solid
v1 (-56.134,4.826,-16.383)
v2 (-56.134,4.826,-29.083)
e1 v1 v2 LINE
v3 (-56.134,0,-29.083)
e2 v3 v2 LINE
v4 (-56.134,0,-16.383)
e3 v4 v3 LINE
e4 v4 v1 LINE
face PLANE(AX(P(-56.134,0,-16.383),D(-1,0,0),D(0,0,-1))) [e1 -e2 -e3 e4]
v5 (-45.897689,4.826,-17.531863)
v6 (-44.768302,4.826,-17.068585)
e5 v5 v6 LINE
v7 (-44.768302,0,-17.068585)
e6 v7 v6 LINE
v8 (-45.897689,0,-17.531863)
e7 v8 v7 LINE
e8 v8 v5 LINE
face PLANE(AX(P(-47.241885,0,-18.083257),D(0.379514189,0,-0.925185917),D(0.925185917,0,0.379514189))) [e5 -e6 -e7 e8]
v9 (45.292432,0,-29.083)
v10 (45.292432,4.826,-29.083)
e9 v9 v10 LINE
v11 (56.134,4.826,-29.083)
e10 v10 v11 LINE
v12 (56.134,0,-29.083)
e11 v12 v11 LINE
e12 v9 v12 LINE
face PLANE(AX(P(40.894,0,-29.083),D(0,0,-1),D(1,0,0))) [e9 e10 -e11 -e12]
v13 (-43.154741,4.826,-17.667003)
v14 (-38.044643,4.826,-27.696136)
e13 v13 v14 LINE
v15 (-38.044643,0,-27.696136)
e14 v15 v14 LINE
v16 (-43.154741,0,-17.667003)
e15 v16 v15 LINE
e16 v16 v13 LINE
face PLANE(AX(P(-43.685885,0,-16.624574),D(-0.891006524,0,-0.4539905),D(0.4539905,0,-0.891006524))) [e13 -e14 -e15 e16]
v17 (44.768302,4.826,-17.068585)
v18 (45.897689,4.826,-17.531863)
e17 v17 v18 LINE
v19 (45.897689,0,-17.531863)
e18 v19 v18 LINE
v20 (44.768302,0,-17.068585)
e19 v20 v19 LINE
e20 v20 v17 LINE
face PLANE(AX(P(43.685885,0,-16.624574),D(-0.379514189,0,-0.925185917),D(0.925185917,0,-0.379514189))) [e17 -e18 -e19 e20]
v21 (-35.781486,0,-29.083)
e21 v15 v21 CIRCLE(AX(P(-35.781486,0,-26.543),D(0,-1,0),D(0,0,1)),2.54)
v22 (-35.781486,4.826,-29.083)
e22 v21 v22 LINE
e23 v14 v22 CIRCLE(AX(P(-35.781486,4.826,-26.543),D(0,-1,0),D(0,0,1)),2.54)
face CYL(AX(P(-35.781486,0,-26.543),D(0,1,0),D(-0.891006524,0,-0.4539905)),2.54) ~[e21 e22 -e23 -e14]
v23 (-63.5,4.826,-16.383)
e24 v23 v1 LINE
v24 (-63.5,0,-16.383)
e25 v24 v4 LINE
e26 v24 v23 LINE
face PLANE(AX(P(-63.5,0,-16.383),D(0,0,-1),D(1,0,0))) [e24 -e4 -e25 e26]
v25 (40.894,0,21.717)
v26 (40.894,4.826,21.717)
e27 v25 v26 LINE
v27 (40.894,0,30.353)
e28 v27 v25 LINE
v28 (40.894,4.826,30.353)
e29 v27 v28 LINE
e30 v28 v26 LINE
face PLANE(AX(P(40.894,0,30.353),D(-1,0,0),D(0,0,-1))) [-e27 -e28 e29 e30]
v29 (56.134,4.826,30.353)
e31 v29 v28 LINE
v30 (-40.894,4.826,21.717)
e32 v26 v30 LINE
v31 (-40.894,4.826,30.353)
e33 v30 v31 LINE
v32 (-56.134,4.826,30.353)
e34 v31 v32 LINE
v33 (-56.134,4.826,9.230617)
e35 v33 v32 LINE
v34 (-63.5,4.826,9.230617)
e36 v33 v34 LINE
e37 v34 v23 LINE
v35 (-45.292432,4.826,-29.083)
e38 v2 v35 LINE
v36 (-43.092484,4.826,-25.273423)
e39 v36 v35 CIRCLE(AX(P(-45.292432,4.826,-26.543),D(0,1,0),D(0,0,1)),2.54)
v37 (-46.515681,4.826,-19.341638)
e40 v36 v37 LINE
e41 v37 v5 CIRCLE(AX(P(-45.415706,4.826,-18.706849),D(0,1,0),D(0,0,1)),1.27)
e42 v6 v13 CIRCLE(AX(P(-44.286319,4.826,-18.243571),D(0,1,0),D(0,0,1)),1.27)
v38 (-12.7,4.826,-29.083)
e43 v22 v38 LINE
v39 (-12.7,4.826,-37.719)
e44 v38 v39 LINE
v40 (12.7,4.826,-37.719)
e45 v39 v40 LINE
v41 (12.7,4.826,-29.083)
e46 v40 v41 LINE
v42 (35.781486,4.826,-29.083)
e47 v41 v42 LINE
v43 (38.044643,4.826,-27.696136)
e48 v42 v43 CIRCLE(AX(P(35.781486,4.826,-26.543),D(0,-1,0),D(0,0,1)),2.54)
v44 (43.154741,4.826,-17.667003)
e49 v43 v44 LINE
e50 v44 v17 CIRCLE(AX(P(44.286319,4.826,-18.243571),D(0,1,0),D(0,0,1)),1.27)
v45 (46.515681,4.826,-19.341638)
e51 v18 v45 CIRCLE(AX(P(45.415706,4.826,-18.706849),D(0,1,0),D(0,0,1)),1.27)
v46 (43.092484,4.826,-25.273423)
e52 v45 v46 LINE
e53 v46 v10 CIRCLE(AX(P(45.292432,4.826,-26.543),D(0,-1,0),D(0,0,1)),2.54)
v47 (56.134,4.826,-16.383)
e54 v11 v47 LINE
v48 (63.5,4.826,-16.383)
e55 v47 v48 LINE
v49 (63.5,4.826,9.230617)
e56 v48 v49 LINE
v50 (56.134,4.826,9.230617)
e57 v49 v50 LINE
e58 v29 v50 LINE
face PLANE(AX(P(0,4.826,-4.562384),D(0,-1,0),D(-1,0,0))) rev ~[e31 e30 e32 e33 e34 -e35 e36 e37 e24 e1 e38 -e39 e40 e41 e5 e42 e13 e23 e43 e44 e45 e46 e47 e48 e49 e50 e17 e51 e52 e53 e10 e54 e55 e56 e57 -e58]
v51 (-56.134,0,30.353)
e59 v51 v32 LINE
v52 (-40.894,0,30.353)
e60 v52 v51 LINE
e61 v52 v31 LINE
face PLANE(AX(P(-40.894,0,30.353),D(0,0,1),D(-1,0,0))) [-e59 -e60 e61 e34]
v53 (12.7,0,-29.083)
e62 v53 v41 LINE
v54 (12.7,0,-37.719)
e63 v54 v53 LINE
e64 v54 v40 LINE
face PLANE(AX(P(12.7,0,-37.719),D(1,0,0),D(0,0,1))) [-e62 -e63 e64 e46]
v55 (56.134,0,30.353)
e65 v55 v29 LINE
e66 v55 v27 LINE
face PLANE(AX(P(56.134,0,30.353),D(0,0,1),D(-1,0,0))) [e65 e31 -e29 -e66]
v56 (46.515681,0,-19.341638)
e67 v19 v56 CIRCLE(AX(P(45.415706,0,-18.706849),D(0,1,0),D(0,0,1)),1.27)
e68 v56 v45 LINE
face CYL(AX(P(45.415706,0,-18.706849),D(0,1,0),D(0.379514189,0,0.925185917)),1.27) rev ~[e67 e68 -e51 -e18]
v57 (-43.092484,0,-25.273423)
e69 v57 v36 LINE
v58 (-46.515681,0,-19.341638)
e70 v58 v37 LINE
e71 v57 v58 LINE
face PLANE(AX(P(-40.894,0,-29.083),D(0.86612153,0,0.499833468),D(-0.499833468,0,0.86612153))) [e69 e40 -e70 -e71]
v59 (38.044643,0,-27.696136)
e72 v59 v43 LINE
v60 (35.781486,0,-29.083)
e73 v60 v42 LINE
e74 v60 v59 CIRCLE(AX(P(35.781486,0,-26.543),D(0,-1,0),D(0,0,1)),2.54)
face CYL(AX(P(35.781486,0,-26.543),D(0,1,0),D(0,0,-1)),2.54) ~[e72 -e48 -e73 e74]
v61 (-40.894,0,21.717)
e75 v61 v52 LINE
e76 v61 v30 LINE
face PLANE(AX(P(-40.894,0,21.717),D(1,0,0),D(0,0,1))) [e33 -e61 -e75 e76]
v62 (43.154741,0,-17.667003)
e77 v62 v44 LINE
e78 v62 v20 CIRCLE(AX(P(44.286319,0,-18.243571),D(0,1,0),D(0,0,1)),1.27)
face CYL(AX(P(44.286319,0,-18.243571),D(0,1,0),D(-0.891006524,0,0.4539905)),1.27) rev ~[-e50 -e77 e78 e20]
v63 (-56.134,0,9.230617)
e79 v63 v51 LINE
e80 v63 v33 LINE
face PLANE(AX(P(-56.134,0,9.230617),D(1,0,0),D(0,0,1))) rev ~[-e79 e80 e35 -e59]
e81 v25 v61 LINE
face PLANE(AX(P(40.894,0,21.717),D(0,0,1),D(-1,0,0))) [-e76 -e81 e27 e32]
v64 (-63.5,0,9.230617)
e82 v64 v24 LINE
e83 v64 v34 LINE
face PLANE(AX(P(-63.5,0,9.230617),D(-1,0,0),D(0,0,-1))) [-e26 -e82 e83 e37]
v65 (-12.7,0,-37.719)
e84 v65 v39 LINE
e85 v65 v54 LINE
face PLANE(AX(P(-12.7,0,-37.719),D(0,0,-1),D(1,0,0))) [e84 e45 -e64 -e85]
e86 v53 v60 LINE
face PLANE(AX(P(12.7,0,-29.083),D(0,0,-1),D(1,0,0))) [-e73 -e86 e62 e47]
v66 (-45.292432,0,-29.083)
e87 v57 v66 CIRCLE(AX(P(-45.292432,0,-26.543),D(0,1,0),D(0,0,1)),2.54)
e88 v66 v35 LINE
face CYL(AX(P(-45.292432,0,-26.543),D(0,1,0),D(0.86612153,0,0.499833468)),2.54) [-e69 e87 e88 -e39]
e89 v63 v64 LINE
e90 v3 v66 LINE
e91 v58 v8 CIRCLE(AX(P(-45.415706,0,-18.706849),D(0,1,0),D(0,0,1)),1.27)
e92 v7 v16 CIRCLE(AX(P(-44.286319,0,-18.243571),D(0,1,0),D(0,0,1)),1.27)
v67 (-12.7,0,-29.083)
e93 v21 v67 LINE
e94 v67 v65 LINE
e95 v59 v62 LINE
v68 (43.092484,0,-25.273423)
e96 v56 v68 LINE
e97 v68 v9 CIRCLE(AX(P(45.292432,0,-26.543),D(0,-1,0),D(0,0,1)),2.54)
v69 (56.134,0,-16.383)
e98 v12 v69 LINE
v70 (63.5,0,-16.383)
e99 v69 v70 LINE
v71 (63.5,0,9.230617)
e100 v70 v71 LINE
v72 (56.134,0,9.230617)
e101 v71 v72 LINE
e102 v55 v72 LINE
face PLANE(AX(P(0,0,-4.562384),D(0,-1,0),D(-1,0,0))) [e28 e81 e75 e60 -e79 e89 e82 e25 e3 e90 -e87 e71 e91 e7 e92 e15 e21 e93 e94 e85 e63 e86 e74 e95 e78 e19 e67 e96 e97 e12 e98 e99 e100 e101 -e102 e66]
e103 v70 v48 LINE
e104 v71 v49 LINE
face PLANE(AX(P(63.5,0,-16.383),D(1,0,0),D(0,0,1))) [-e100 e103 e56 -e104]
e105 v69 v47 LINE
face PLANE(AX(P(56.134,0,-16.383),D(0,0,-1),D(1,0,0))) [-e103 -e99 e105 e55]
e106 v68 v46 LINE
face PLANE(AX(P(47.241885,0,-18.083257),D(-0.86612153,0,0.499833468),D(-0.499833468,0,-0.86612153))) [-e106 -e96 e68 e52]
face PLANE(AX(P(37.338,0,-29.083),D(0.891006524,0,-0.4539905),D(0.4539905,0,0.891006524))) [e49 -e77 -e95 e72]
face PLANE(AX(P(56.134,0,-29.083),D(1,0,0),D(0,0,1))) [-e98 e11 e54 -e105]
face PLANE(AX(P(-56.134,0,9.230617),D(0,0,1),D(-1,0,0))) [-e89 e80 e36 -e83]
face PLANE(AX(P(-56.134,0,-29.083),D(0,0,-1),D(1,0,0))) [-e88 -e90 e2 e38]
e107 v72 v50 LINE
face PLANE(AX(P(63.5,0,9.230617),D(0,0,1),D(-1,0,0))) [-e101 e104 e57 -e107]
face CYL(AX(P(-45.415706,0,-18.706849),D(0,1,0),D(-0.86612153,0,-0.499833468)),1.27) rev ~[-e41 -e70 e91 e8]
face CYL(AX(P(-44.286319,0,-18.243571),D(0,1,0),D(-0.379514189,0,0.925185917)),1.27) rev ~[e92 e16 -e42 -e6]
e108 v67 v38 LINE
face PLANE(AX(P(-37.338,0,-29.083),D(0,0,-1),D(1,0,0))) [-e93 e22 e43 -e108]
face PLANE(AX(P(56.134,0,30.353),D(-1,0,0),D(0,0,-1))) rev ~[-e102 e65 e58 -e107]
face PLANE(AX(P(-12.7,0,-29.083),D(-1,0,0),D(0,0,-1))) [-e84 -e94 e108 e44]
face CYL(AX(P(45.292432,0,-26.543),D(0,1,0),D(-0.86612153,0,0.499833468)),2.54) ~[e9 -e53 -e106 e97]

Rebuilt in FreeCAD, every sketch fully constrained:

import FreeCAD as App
import Part
import Sketcher
Q = App.Units.Quantity


def edges_at(feature, points):
    """Names of the edges that pass closest to the given points."""
    edges = feature.Shape.Edges
    near = lambda p: min(range(len(edges)), key=lambda i: edges[i].distToShape(Part.Vertex(*p))[0])
    return sorted({f"Edge{near(p) + 1}" for p in points})

doc = App.newDocument("Part")
body = doc.addObject("PartDesign::Body", "Body")

sketch1 = body.newObject("Sketcher::SketchObject", "Sketch")
sketch1.AttachmentSupport = (doc.getObject("XZ_Plane"), [""])
sketch1.MapMode = "FlatFace"
sketch1.addGeometry([
    Part.LineSegment(App.Vector(-40.9, -29.1, 0), App.Vector(-56.1, -29.1, 0)),
    Part.LineSegment(App.Vector(-56.1, -29.1, 0), App.Vector(-56.1, -16.4, 0)),
    Part.LineSegment(App.Vector(-56.1, -16.4, 0), App.Vector(-63.5, -16.4, 0)),
    Part.LineSegment(App.Vector(-63.5, -16.4, 0), App.Vector(-63.5, 9.2, 0)),
    Part.LineSegment(App.Vector(-63.5, 9.2, 0), App.Vector(-56.1, 9.2, 0)),
    Part.LineSegment(App.Vector(-56.1, 9.2, 0), App.Vector(-56.1, 30.4, 0)),
    Part.LineSegment(App.Vector(-56.1, 30.4, 0), App.Vector(-40.9, 30.4, 0)),
    Part.LineSegment(App.Vector(-40.9, 30.4, 0), App.Vector(-40.9, 21.7, 0)),
    Part.LineSegment(App.Vector(-40.9, 21.7, 0), App.Vector(40.9, 21.7, 0)),
    Part.LineSegment(App.Vector(40.9, 21.7, 0), App.Vector(40.9, 30.4, 0)),
    Part.LineSegment(App.Vector(40.9, 30.4, 0), App.Vector(56.1, 30.4, 0)),
    Part.LineSegment(App.Vector(56.1, 30.4, 0), App.Vector(56.1, 9.2, 0)),
    Part.LineSegment(App.Vector(56.1, 9.2, 0), App.Vector(63.5, 9.2, 0)),
    Part.LineSegment(App.Vector(63.5, 9.2, 0), App.Vector(63.5, -16.4, 0)),
    Part.LineSegment(App.Vector(63.5, -16.4, 0), App.Vector(56.1, -16.4, 0)),
    Part.LineSegment(App.Vector(56.1, -16.4, 0), App.Vector(56.1, -29.1, 0)),
    Part.LineSegment(App.Vector(56.1, -29.1, 0), App.Vector(40.9, -29.1, 0)),
    Part.LineSegment(App.Vector(40.9, -29.1, 0), App.Vector(47.2, -18.1, 0)),
    Part.LineSegment(App.Vector(47.2, -18.1, 0), App.Vector(43.7, -16.6, 0)),
    Part.LineSegment(App.Vector(43.7, -16.6, 0), App.Vector(37.3, -29.1, 0)),
    Part.LineSegment(App.Vector(37.3, -29.1, 0), App.Vector(12.7, -29.1, 0)),
    Part.LineSegment(App.Vector(12.7, -29.1, 0), App.Vector(12.7, -37.7, 0)),
    Part.LineSegment(App.Vector(12.7, -37.7, 0), App.Vector(-12.7, -37.7, 0)),
    Part.LineSegment(App.Vector(-12.7, -37.7, 0), App.Vector(-12.7, -29.1, 0)),
    Part.LineSegment(App.Vector(-12.7, -29.1, 0), App.Vector(-37.3, -29.1, 0)),
    Part.LineSegment(App.Vector(-37.3, -29.1, 0), App.Vector(-43.7, -16.6, 0)),
    Part.LineSegment(App.Vector(-43.7, -16.6, 0), App.Vector(-47.2, -18.1, 0)),
    Part.LineSegment(App.Vector(-47.2, -18.1, 0), App.Vector(-40.9, -29.1, 0)),
], False)
sketch1.addConstraint([
    Sketcher.Constraint("Coincident", 0, 2, 1, 1),
    Sketcher.Constraint("Coincident", 1, 2, 2, 1),
    Sketcher.Constraint("Coincident", 2, 2, 3, 1),
    Sketcher.Constraint("Coincident", 3, 2, 4, 1),
    Sketcher.Constraint("Coincident", 4, 2, 5, 1),
    Sketcher.Constraint("Coincident", 5, 2, 6, 1),
    Sketcher.Constraint("Coincident", 6, 2, 7, 1),
    Sketcher.Constraint("Coincident", 7, 2, 8, 1),
    Sketcher.Constraint("Coincident", 8, 2, 9, 1),
    Sketcher.Constraint("Coincident", 9, 2, 10, 1),
    Sketcher.Constraint("Coincident", 10, 2, 11, 1),
    Sketcher.Constraint("Coincident", 11, 2, 12, 1),
    Sketcher.Constraint("Coincident", 12, 2, 13, 1),
    Sketcher.Constraint("Coincident", 13, 2, 14, 1),
    Sketcher.Constraint("Coincident", 14, 2, 15, 1),
    Sketcher.Constraint("Coincident", 15, 2, 16, 1),
    Sketcher.Constraint("Coincident", 16, 2, 17, 1),
    Sketcher.Constraint("Coincident", 17, 2, 18, 1),
    Sketcher.Constraint("Coincident", 18, 2, 19, 1),
    Sketcher.Constraint("Coincident", 19, 2, 20, 1),
    Sketcher.Constraint("Coincident", 20, 2, 21, 1),
    Sketcher.Constraint("Coincident", 21, 2, 22, 1),
    Sketcher.Constraint("Coincident", 22, 2, 23, 1),
    Sketcher.Constraint("Coincident", 23, 2, 24, 1),
    Sketcher.Constraint("Coincident", 24, 2, 25, 1),
    Sketcher.Constraint("Coincident", 25, 2, 26, 1),
    Sketcher.Constraint("Coincident", 26, 2, 27, 1),
    Sketcher.Constraint("Coincident", 27, 2, 0, 1),
    Sketcher.Constraint("Horizontal", 0),
    Sketcher.Constraint("Vertical", 1),
    Sketcher.Constraint("Horizontal", 2),
    Sketcher.Constraint("Vertical", 3),
    Sketcher.Constraint("Horizontal", 4),
    Sketcher.Constraint("Vertical", 5),
    Sketcher.Constraint("Horizontal", 6),
    Sketcher.Constraint("Vertical", 7),
    Sketcher.Constraint("Horizontal", 8),
    Sketcher.Constraint("Vertical", 9),
    Sketcher.Constraint("Horizontal", 10),
    Sketcher.Constraint("Vertical", 11),
    Sketcher.Constraint("Horizontal", 12),
    Sketcher.Constraint("Vertical", 13),
    Sketcher.Constraint("Horizontal", 14),
    Sketcher.Constraint("Vertical", 15),
    Sketcher.Constraint("Horizontal", 16),
    Sketcher.Constraint("Horizontal", 20),
    Sketcher.Constraint("Vertical", 21),
    Sketcher.Constraint("Horizontal", 22),
    Sketcher.Constraint("Vertical", 23),
    Sketcher.Constraint("Horizontal", 24),
    Sketcher.Constraint("Symmetric", 6, 2, 9, 2, -2),
    Sketcher.Constraint("Symmetric", 4, 2, 11, 2, -2),
    Sketcher.Constraint("Symmetric", 2, 2, 13, 2, -2),
    Sketcher.Constraint("Symmetric", 0, 2, 15, 2, -2),
    Sketcher.Constraint("Symmetric", 20, 2, 23, 2, -2),
    Sketcher.Constraint("Symmetric", 18, 2, 25, 2, -2),
    Sketcher.Constraint("Symmetric", 17, 2, 26, 2, -2),
    Sketcher.Constraint("Horizontal", 16, 2, 19, 2),
    Sketcher.Constraint("Vertical", 1, 2, 4, 2),
    Sketcher.Constraint("Vertical", 9, 2, 16, 2),
    Sketcher.Constraint("Vertical", 7, 2, 27, 2),
    Sketcher.Constraint("Equal", 20, 24),
    Sketcher.Constraint("Equal", 9, 21),
    Sketcher.Constraint("DistanceX", 22, 2, 22, 1, Q("1 in")),
    Sketcher.Constraint("DistanceX", 0, 2, 0, 1, Q("0.6 in")),
    Sketcher.Constraint("DistanceY", 1, 1, 1, 2, Q("0.5 in")),
    Sketcher.Constraint("Angle", 19, Q("-117 deg")),
    Sketcher.Constraint("DistanceY", 15, 2, 8, 2, Q("2 in")),
    Sketcher.Constraint("Distance", 17, Q("0.5 in")),
    Sketcher.Constraint("DistanceX", 2, 2, 2, 1, Q("0.29 in")),
    Sketcher.Constraint("DistanceX", 8, 1, 8, 2, Q("3.22 in")),
    Sketcher.Constraint("DistanceX", 20, 2, 20, 1, Q("0.97 in")),
    Sketcher.Constraint("DistanceY", 7, 2, 7, 1, Q("0.34 in")),
    Sketcher.Constraint("DistanceX", 18, 2, 17, 2, Q("0.14 in")),
    Sketcher.Constraint("DistanceY", 0, 2, -1, 1, Q("1.145 in")),
    Sketcher.Constraint("Distance", 18, 3.843552),
    Sketcher.Constraint("DistanceY", 3, 1, 3, 2, 25.613617),
])
pad1 = body.newObject("PartDesign::Pad", "Pad")
pad1.Profile = sketch1
pad1.Length = Q("0.19 in")
pad1.Reversed = True
doc.recompute()

fillet = body.newObject("PartDesign::Fillet", "Fillet")
fillet.Base = (pad1, edges_at(pad1, [
    (-47.242, 2.413, -18.083),
    (-43.686, 2.413, -16.625),
    (43.686, 2.413, -16.625),
    (47.242, 2.413, -18.083),
]))
fillet.Radius = Q("0.05 in")
doc.recompute()

fillet2 = body.newObject("PartDesign::Fillet", "Fillet001")
fillet2.Base = (fillet, edges_at(fillet, [
    (-40.894, 2.413, -29.083),
    (-37.338, 2.413, -29.083),
    (37.338, 2.413, -29.083),
    (40.894, 2.413, -29.083),
]))
fillet2.Radius = Q("0.1 in")

doc.recompute()
